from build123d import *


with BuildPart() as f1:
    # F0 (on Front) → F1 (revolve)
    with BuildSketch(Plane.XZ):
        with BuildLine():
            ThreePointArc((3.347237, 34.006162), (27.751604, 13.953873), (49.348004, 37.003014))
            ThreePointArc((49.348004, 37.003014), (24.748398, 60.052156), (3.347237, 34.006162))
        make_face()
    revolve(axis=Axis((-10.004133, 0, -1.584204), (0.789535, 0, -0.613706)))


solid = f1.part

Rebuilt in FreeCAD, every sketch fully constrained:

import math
import FreeCAD as App
import Part
import Sketcher
from FreeCAD import Vector

doc = App.newDocument("Part")
body = doc.addObject("PartDesign::Body", "Body")

# Sketch on XZ plane
sketch1 = body.newObject("Sketcher::SketchObject", "Sketch")
sketch1.AttachmentSupport = (doc.getObject("XZ_Plane"), [""])
sketch1.MapMode = "FlatFace"
sketch1.addGeometry(Part.ArcOfCircle(Part.Circle(Vector(26.250001, 37.003014, 0), Vector(0, 0, 1), 23.098003), math.radians(-172.545138), math.radians(-0.000001)), False)
sketch1.addGeometry(Part.ArcOfCircle(Part.Circle(Vector(26.250001, 37.003015, 0), Vector(0, 0, 1), 23.098003), math.radians(-0.000001), math.radians(187.454863)), False)
sketch1.addGeometry(Part.LineSegment(Vector(-18.926384, 5.351067, 0), Vector(8.29679, -15.809522, 0)), True)  # axis
sketch1.addConstraint(Sketcher.Constraint("Tangent", 0, 1, 1, 2))
sketch1.addConstraint(Sketcher.Constraint("Coincident", 1, 1, 0, 2))
sketch1.addConstraint(Sketcher.Constraint("Horizontal", 0, 3, 1, 1))
sketch1.addConstraint(Sketcher.Constraint("DistanceX", -1, 1, 0, 3, 26.250001))
sketch1.addConstraint(Sketcher.Constraint("Radius", 0, 23.098003))
sketch1.addConstraint(Sketcher.Constraint("Distance", 2, 34.48002))
sketch1.addConstraint(Sketcher.Constraint("DistanceY", -1, 1, 0, 1, 34.006162))
sketch1.addConstraint(Sketcher.Constraint("DistanceX", -1, 1, 2, 2, 8.29679))
sketch1.addConstraint(Sketcher.Constraint("DistanceY", 2, 2, -1, 1, 15.809522))
sketch1.addConstraint(Sketcher.Constraint("DistanceX", 2, 1, 0, 1, 22.273621))
sketch1.addConstraint(Sketcher.Constraint("DistanceX", 2, 1, 1, 1, 68.274388))
revolution = body.newObject("PartDesign::Revolution", "Revolution")
revolution.Profile = sketch1
revolution.ReferenceAxis = (sketch1, ["Axis0"])
revolution.Angle = 360

doc.recompute()
